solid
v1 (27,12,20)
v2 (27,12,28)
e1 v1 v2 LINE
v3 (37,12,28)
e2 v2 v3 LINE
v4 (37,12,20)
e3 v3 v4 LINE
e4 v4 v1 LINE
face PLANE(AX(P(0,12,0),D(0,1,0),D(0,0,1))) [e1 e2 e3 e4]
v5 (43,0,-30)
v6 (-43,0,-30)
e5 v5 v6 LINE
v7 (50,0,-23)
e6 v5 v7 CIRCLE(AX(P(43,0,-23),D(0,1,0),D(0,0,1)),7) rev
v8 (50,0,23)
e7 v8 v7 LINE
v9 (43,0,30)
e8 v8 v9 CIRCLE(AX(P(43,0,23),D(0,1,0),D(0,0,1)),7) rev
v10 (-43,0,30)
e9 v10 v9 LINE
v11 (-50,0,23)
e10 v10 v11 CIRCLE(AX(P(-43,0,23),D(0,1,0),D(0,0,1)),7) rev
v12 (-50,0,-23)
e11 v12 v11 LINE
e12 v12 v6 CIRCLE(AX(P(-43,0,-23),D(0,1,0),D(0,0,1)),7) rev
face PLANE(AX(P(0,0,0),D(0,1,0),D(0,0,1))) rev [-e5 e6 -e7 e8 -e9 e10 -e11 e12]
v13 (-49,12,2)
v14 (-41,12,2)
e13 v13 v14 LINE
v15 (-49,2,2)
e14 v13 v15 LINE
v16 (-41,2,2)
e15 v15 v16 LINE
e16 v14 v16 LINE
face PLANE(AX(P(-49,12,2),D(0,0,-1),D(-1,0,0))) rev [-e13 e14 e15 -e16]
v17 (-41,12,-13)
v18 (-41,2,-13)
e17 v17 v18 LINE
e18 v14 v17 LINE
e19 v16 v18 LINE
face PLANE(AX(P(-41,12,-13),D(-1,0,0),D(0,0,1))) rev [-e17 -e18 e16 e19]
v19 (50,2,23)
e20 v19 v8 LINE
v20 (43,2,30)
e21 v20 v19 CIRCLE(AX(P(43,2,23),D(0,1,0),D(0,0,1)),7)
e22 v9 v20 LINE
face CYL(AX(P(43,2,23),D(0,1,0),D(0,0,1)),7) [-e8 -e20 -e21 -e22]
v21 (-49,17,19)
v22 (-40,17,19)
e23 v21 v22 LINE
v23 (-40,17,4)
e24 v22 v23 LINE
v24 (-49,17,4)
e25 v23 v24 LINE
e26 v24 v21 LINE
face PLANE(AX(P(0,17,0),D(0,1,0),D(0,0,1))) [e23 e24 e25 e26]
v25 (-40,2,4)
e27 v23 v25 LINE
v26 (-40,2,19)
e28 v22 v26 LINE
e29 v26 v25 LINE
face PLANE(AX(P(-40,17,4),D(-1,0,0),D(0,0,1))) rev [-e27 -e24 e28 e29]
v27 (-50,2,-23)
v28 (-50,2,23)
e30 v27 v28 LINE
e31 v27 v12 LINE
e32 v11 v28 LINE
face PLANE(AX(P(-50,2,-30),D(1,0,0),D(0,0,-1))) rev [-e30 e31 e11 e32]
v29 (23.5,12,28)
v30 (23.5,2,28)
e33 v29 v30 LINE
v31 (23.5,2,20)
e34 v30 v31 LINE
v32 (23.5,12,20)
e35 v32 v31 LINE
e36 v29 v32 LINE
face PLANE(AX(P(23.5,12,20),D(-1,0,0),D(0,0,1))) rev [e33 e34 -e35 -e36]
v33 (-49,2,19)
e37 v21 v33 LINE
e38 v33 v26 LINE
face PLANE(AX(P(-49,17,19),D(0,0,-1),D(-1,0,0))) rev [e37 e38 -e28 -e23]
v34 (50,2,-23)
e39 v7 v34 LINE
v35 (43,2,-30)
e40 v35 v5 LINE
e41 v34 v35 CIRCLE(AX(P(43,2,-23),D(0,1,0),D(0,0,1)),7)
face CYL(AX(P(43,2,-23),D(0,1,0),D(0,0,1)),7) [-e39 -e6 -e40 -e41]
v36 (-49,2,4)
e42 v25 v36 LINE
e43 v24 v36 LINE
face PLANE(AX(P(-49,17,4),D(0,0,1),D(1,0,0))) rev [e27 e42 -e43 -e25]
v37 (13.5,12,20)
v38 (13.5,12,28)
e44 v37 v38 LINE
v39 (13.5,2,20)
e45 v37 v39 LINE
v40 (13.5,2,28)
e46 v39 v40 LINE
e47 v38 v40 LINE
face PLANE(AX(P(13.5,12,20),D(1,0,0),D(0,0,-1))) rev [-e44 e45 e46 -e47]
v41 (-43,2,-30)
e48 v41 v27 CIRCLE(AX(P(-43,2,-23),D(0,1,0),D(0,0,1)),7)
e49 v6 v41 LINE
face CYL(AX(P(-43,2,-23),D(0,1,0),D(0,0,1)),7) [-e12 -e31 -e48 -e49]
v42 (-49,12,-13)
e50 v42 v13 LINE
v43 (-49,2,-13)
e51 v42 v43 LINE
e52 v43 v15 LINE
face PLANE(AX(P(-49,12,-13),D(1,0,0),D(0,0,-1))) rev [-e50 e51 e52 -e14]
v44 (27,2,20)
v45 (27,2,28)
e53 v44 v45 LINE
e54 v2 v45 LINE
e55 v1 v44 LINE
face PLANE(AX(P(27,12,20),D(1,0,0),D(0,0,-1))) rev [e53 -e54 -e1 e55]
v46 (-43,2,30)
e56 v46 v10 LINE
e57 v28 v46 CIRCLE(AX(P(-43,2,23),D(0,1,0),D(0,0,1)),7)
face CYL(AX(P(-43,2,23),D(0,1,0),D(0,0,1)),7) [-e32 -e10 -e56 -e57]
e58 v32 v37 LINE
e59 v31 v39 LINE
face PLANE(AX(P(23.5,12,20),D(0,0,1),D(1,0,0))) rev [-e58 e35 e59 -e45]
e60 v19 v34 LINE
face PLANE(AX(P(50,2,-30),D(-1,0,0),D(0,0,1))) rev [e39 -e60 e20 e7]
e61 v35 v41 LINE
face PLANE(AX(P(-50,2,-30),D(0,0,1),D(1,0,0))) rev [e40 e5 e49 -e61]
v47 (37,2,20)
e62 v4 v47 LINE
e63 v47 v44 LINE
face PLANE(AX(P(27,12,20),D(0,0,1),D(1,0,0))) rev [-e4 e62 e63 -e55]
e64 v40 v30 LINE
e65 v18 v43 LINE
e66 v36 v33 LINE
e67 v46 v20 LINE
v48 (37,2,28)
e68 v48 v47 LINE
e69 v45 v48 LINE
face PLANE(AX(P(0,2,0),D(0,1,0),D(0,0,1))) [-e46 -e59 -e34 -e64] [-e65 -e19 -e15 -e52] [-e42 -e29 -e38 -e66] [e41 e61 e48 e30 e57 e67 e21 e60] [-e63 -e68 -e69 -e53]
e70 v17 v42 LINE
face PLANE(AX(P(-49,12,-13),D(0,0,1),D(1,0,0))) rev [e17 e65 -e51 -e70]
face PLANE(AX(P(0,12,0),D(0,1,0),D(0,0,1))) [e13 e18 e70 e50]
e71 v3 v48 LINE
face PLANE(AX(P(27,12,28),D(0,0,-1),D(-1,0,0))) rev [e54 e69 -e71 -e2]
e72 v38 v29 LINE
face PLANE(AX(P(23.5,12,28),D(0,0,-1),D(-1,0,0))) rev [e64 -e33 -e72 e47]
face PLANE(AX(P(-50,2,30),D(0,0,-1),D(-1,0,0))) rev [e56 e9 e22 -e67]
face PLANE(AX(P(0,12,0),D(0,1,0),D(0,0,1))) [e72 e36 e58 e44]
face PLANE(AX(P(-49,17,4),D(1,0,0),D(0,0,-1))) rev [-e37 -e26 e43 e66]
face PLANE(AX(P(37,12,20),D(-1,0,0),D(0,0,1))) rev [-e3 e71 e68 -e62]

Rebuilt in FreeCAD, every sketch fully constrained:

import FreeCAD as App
import Part
import Sketcher
from FreeCAD import Vector


def edges_at(feature, points):
    """Names of the edges that pass closest to the given points."""
    edges = feature.Shape.Edges
    near = lambda p: min(range(len(edges)), key=lambda i: edges[i].distToShape(Part.Vertex(*p))[0])
    return sorted({f"Edge{near(p) + 1}" for p in points})

doc = App.newDocument("Part")
body = doc.addObject("PartDesign::Body", "Body")

# Sketch on XZ plane
sketch1 = body.newObject("Sketcher::SketchObject", "Sketch")
sketch1.AttachmentSupport = (doc.getObject("XZ_Plane"), [""])
sketch1.MapMode = "FlatFace"
sketch1.addGeometry([
    Part.LineSegment(Vector(-50, -30, 0), Vector(-50, 30, 0)),
    Part.LineSegment(Vector(-50, 30, 0), Vector(50, 30, 0)),
    Part.LineSegment(Vector(50, 30, 0), Vector(50, -30, 0)),
    Part.LineSegment(Vector(50, -30, 0), Vector(-50, -30, 0)),
], False)
sketch1.addConstraint([
    Sketcher.Constraint("Coincident", 0, 2, 1, 1),
    Sketcher.Constraint("Coincident", 1, 2, 2, 1),
    Sketcher.Constraint("Coincident", 2, 2, 3, 1),
    Sketcher.Constraint("Coincident", 3, 2, 0, 1),
    Sketcher.Constraint("Vertical", 0),
    Sketcher.Constraint("Horizontal", 1),
    Sketcher.Constraint("Vertical", 2),
    Sketcher.Constraint("Horizontal", 3),
    Sketcher.Constraint("Symmetric", 0, 2, 2, 2, -1, 1),
    Sketcher.Constraint("DistanceX", 1, 1, 1, 2, 100.0),
    Sketcher.Constraint("DistanceY", 0, 1, 0, 2, 60.0),
])
pad1 = body.newObject("PartDesign::Pad", "Pad")
pad1.Profile = sketch1
pad1.Length = 2
pad1.Reversed = True
doc.recompute()

fillet = body.newObject("PartDesign::Fillet", "Fillet")
fillet.Base = (pad1, edges_at(pad1, [(50, 1, 30)]))
fillet.Radius = 7
doc.recompute()

fillet2 = body.newObject("PartDesign::Fillet", "Fillet001")
fillet2.Base = (fillet, edges_at(fillet, [(50, 1, -30)]))
fillet2.Radius = 7
doc.recompute()

fillet3 = body.newObject("PartDesign::Fillet", "Fillet002")
fillet3.Base = (fillet2, edges_at(fillet2, [(-50, 1, -30)]))
fillet3.Radius = 7
doc.recompute()

fillet4 = body.newObject("PartDesign::Fillet", "Fillet003")
fillet4.Base = (fillet3, edges_at(fillet3, [(-50, 1, 30)]))
fillet4.Radius = 7

# Sketch on XZ plane
sketch2 = body.newObject("Sketcher::SketchObject", "Sketch001")
sketch2.AttachmentSupport = (doc.getObject("XZ_Plane"), [""])
sketch2.MapMode = "FlatFace"
sketch2.AttachmentOffset = App.Placement(Vector(0, 0, -2), App.Rotation())
sketch2.addGeometry([
    Part.LineSegment(Vector(-49, -13, 0), Vector(-49, 2, 0)),
    Part.LineSegment(Vector(-49, 2, 0), Vector(-41, 2, 0)),
    Part.LineSegment(Vector(-41, 2, 0), Vector(-41, -13, 0)),
    Part.LineSegment(Vector(-41, -13, 0), Vector(-49, -13, 0)),
], False)
sketch2.addConstraint([
    Sketcher.Constraint("Coincident", 0, 2, 1, 1),
    Sketcher.Constraint("Coincident", 1, 2, 2, 1),
    Sketcher.Constraint("Coincident", 2, 2, 3, 1),
    Sketcher.Constraint("Coincident", 3, 2, 0, 1),
    Sketcher.Constraint("Vertical", 0),
    Sketcher.Constraint("Horizontal", 1),
    Sketcher.Constraint("Vertical", 2),
    Sketcher.Constraint("Horizontal", 3),
    Sketcher.Constraint("DistanceX", 1, 1, 1, 2, 8.0),
    Sketcher.Constraint("DistanceY", 0, 1, 0, 2, 15.0),
    Sketcher.Constraint("DistanceX", 0, 2, -1, 1, 49.0),
    Sketcher.Constraint("DistanceY", -1, 1, 0, 2, 2.0),
])
pad2 = body.newObject("PartDesign::Pad", "Pad001")
pad2.Profile = sketch2
pad2.Length = 10
pad2.Reversed = True

# Sketch on XZ plane
sketch3 = body.newObject("Sketcher::SketchObject", "Sketch002")
sketch3.AttachmentSupport = (doc.getObject("XZ_Plane"), [""])
sketch3.MapMode = "FlatFace"
sketch3.AttachmentOffset = App.Placement(Vector(0, 0, -2), App.Rotation())
sketch3.addGeometry([
    Part.LineSegment(Vector(-49, 4, 0), Vector(-49, 19, 0)),
    Part.LineSegment(Vector(-49, 19, 0), Vector(-40, 19, 0)),
    Part.LineSegment(Vector(-40, 19, 0), Vector(-40, 4, 0)),
    Part.LineSegment(Vector(-40, 4, 0), Vector(-49, 4, 0)),
], False)
sketch3.addConstraint([
    Sketcher.Constraint("Coincident", 0, 2, 1, 1),
    Sketcher.Constraint("Coincident", 1, 2, 2, 1),
    Sketcher.Constraint("Coincident", 2, 2, 3, 1),
    Sketcher.Constraint("Coincident", 3, 2, 0, 1),
    Sketcher.Constraint("Vertical", 0),
    Sketcher.Constraint("Horizontal", 1),
    Sketcher.Constraint("Vertical", 2),
    Sketcher.Constraint("Horizontal", 3),
    Sketcher.Constraint("DistanceX", 1, 1, 1, 2, 9.0),
    Sketcher.Constraint("DistanceY", 0, 1, 0, 2, 15.0),
    Sketcher.Constraint("DistanceX", 0, 2, -1, 1, 49.0),
    Sketcher.Constraint("DistanceY", -1, 1, 0, 2, 19.0),
])
pad3 = body.newObject("PartDesign::Pad", "Pad002")
pad3.Profile = sketch3
pad3.Length = 15
pad3.Reversed = True

# Sketch on XZ plane
sketch4 = body.newObject("Sketcher::SketchObject", "Sketch003")
sketch4.AttachmentSupport = (doc.getObject("XZ_Plane"), [""])
sketch4.MapMode = "FlatFace"
sketch4.AttachmentOffset = App.Placement(Vector(0, 0, -2), App.Rotation())
sketch4.addGeometry([
    Part.LineSegment(Vector(27, 20, 0), Vector(27, 28, 0)),  # 0
    Part.LineSegment(Vector(27, 28, 0), Vector(37, 28, 0)),  # 1
    Part.LineSegment(Vector(37, 28, 0), Vector(37, 20, 0)),  # 2
    Part.LineSegment(Vector(37, 20, 0), Vector(27, 20, 0)),  # 3
    Part.LineSegment(Vector(14, 20, 0), Vector(14, 28, 0)),  # 4
    Part.LineSegment(Vector(14, 28, 0), Vector(24, 28, 0)),  # 5
    Part.LineSegment(Vector(24, 28, 0), Vector(24, 20, 0)),  # 6
    Part.LineSegment(Vector(24, 20, 0), Vector(14, 20, 0)),  # 7
], False)
sketch4.addConstraint([
    Sketcher.Constraint("Coincident", 0, 2, 1, 1),
    Sketcher.Constraint("Coincident", 1, 2, 2, 1),
    Sketcher.Constraint("Coincident", 2, 2, 3, 1),
    Sketcher.Constraint("Coincident", 3, 2, 0, 1),
    Sketcher.Constraint("Coincident", 4, 2, 5, 1),
    Sketcher.Constraint("Coincident", 5, 2, 6, 1),
    Sketcher.Constraint("Coincident", 6, 2, 7, 1),
    Sketcher.Constraint("Coincident", 7, 2, 4, 1),
    Sketcher.Constraint("Vertical", 0),
    Sketcher.Constraint("Horizontal", 1),
    Sketcher.Constraint("Vertical", 2),
    Sketcher.Constraint("Horizontal", 3),
    Sketcher.Constraint("Vertical", 4),
    Sketcher.Constraint("Horizontal", 5),
    Sketcher.Constraint("Vertical", 6),
    Sketcher.Constraint("Horizontal", 7),
    Sketcher.Constraint("Horizontal", 1, 2, 4, 2),
    Sketcher.Constraint("Horizontal", 3, 2, 6, 2),
    Sketcher.Constraint("Equal", 3, 5),
    Sketcher.Constraint("DistanceX", 1, 1, 1, 2, 10.0),
    Sketcher.Constraint("DistanceY", 0, 1, 0, 2, 8.0),
    Sketcher.Constraint("DistanceX", -1, 1, 0, 2, 27.0),
    Sketcher.Constraint("DistanceY", -1, 1, 0, 2, 28.0),
    Sketcher.Constraint("DistanceX", -1, 1, 4, 2, 13.5),
])
pad4 = body.newObject("PartDesign::Pad", "Pad003")
pad4.Profile = sketch4
pad4.Length = 10
pad4.Reversed = True

doc.recompute()
